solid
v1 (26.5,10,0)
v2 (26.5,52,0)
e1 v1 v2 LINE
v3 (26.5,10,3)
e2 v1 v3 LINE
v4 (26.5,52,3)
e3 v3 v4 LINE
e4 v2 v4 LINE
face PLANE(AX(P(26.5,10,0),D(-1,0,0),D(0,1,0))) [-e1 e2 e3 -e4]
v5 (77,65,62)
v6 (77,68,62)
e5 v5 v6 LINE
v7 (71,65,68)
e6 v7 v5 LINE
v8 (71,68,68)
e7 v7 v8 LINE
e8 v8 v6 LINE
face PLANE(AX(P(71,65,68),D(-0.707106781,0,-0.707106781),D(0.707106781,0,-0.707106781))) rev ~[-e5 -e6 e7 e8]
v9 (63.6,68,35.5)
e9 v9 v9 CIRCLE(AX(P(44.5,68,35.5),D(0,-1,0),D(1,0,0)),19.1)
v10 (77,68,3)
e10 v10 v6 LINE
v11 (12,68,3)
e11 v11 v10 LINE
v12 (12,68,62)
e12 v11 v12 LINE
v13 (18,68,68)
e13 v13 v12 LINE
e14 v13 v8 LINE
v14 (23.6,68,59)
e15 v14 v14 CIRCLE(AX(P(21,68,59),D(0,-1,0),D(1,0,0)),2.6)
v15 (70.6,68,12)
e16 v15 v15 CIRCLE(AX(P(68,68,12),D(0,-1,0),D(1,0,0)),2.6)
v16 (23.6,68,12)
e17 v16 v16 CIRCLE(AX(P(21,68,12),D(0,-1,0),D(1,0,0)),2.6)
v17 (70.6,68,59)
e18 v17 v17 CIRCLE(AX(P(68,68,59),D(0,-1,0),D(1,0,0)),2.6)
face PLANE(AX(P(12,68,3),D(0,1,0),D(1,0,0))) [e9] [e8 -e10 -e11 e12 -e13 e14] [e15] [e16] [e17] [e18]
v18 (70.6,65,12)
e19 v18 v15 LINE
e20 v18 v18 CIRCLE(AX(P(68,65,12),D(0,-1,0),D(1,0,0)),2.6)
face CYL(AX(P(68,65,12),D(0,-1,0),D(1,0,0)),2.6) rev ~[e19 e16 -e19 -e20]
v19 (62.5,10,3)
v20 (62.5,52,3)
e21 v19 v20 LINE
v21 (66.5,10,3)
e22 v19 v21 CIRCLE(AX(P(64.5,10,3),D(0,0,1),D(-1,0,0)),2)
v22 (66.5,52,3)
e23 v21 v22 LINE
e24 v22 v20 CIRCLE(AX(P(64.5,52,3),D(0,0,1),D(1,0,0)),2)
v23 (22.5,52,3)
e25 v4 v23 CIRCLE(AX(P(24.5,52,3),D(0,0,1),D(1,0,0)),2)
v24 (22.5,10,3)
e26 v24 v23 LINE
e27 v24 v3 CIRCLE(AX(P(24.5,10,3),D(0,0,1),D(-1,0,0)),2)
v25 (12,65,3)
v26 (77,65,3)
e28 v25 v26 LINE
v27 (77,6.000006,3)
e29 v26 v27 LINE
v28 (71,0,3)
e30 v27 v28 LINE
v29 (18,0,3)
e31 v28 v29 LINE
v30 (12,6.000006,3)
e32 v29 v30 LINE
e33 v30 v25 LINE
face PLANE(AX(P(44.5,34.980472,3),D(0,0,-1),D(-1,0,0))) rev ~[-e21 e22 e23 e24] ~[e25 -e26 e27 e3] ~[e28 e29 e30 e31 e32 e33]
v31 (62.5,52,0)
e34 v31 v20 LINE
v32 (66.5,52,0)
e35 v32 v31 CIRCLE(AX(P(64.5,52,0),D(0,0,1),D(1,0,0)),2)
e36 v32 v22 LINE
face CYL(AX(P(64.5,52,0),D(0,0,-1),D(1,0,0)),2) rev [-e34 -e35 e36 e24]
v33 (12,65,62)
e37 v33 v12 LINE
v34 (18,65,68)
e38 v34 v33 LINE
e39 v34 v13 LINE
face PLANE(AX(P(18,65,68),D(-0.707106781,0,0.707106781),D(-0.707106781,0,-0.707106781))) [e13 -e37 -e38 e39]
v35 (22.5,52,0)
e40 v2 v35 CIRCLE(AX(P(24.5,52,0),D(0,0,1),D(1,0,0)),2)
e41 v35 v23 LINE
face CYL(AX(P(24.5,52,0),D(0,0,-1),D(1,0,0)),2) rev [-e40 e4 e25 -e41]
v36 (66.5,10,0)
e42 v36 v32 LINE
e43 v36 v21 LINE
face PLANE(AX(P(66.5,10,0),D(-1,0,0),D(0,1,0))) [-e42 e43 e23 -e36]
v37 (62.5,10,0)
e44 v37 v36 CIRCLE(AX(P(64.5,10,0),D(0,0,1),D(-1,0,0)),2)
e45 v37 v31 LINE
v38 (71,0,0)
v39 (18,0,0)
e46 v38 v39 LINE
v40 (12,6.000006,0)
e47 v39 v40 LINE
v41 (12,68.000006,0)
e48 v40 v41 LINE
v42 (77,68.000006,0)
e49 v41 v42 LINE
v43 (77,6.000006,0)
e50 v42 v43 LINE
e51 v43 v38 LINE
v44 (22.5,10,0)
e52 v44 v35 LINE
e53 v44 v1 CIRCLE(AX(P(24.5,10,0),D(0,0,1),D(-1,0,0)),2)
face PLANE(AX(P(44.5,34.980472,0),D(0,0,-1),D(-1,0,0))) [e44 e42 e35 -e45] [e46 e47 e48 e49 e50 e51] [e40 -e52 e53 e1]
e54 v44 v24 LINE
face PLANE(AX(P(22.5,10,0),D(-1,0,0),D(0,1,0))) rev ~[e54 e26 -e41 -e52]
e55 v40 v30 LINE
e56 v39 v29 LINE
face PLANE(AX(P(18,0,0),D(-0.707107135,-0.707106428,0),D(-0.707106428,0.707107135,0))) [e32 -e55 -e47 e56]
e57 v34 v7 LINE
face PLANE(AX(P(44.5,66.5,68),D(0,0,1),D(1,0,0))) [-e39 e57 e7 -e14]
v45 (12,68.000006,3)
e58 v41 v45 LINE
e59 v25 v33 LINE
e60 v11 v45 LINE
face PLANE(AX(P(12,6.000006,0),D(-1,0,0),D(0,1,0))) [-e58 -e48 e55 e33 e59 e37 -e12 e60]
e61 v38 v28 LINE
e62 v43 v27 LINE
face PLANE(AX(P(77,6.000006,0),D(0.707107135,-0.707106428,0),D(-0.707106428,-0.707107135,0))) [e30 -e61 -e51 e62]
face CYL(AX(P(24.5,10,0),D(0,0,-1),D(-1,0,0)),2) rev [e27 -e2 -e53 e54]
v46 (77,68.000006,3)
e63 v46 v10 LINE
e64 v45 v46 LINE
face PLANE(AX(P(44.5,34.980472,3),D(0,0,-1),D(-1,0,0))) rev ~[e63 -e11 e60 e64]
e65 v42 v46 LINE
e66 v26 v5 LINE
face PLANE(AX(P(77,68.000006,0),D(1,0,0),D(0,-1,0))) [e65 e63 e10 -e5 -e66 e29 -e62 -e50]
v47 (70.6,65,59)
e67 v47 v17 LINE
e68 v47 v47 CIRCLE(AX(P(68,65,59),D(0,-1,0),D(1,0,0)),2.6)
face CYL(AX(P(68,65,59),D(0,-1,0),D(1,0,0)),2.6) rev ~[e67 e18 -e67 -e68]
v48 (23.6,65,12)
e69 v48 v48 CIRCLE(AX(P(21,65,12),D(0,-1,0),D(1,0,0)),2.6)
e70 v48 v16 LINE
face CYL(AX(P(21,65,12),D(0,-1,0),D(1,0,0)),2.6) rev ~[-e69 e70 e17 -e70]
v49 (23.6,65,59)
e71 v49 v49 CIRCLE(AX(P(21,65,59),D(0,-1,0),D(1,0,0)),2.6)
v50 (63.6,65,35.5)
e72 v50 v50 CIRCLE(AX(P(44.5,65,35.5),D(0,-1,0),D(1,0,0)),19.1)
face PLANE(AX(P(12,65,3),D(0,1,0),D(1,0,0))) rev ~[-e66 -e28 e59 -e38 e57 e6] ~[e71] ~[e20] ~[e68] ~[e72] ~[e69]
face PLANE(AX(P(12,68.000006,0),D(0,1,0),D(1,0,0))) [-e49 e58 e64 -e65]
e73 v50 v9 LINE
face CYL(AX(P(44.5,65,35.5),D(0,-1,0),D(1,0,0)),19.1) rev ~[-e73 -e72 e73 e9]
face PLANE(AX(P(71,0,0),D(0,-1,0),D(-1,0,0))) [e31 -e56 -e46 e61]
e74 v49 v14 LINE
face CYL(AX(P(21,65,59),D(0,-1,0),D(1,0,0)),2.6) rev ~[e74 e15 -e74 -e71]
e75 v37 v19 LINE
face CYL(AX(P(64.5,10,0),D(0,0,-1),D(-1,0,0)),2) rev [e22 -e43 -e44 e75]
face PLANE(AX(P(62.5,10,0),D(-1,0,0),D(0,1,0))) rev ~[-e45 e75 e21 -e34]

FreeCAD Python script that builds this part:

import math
import FreeCAD as App
import Part
import Sketcher
from FreeCAD import Vector
Q = App.Units.Quantity

doc = App.newDocument("Part")
body = doc.addObject("PartDesign::Body", "Body")

sketch1 = doc.addObject("Sketcher::SketchObject", "Sketch")
body.addObject(sketch1)
sketch1.AttachmentSupport = (doc.XY_Plane, [""])
sketch1.MapMode = "FlatFace"
sketch1.addGeometry(Part.LineSegment(Vector(65, 68, 0), Vector(0, 68, 0)), False)
sketch1.addGeometry(Part.LineSegment(Vector(0, 68, 0), Vector(0, 6, 0)), False)
sketch1.addGeometry(Part.LineSegment(Vector(0, 6, 0), Vector(6, 0, 0)), False)
sketch1.addGeometry(Part.LineSegment(Vector(6, 0, 0), Vector(59, 0, 0)), False)
sketch1.addGeometry(Part.LineSegment(Vector(59, 0, 0), Vector(65, 6, 0)), False)
sketch1.addGeometry(Part.LineSegment(Vector(65, 6, 0), Vector(65, 68, 0)), False)
sketch1.addGeometry(Part.LineSegment(Vector(50.5, 10, 0), Vector(50.5, 52, 0)), False)
sketch1.addGeometry(Part.ArcOfCircle(Part.Circle(Vector(52.5, 52, 0), Vector(0, 0, 1), 2), math.radians(0), math.radians(180)), False)
sketch1.addGeometry(Part.LineSegment(Vector(54.5, 52, 0), Vector(54.5, 10, 0)), False)
sketch1.addGeometry(Part.ArcOfCircle(Part.Circle(Vector(52.5, 10, 0), Vector(0, 0, 1), 2), math.radians(180), math.radians(360)), False)
sketch1.addGeometry(Part.LineSegment(Vector(10.5, 10, 0), Vector(10.5, 52, 0)), False)
sketch1.addGeometry(Part.ArcOfCircle(Part.Circle(Vector(12.5, 52, 0), Vector(0, 0, 1), 2), math.radians(0), math.radians(180)), False)
sketch1.addGeometry(Part.LineSegment(Vector(14.5, 52, 0), Vector(14.5, 10, 0)), False)
sketch1.addGeometry(Part.ArcOfCircle(Part.Circle(Vector(12.5, 10, 0), Vector(0, 0, 1), 2), math.radians(180), math.radians(360)), False)
sketch1.addConstraint(Sketcher.Constraint("Coincident", 0, 2, 1, 1))
sketch1.addConstraint(Sketcher.Constraint("Coincident", 1, 2, 2, 1))
sketch1.addConstraint(Sketcher.Constraint("Coincident", 2, 2, 3, 1))
sketch1.addConstraint(Sketcher.Constraint("Coincident", 3, 2, 4, 1))
sketch1.addConstraint(Sketcher.Constraint("Coincident", 4, 2, 5, 1))
sketch1.addConstraint(Sketcher.Constraint("Coincident", 5, 2, 0, 1))
sketch1.addConstraint(Sketcher.Constraint("Tangent", 6, 2, 7, 2))
sketch1.addConstraint(Sketcher.Constraint("Tangent", 7, 1, 8, 1))
sketch1.addConstraint(Sketcher.Constraint("Tangent", 8, 2, 9, 2))
sketch1.addConstraint(Sketcher.Constraint("Tangent", 9, 1, 6, 1))
sketch1.addConstraint(Sketcher.Constraint("Tangent", 10, 2, 11, 2))
sketch1.addConstraint(Sketcher.Constraint("Tangent", 11, 1, 12, 1))
sketch1.addConstraint(Sketcher.Constraint("Tangent", 12, 2, 13, 2))
sketch1.addConstraint(Sketcher.Constraint("Tangent", 13, 1, 10, 1))
sketch1.addConstraint(Sketcher.Constraint("Horizontal", 0))
sketch1.addConstraint(Sketcher.Constraint("Vertical", 1))
sketch1.addConstraint(Sketcher.Constraint("Horizontal", 3))
sketch1.addConstraint(Sketcher.Constraint("Vertical", 5))
sketch1.addConstraint(Sketcher.Constraint("Vertical", 6))
sketch1.addConstraint(Sketcher.Constraint("Vertical", 8))
sketch1.addConstraint(Sketcher.Constraint("Vertical", 10))
sketch1.addConstraint(Sketcher.Constraint("Vertical", 12))
sketch1.addConstraint(Sketcher.Constraint("Equal", 9, 11))
sketch1.addConstraint(Sketcher.Constraint("PointOnObject", 0, 2, -2))
sketch1.addConstraint(Sketcher.Constraint("PointOnObject", 2, 2, -1))
sketch1.addConstraint(Sketcher.Constraint("Perpendicular", 2, 4))
sketch1.addConstraint(Sketcher.Constraint("Horizontal", 7, 3, 11, 3))
sketch1.addConstraint(Sketcher.Constraint("Horizontal", 9, 3, 13, 3))
sketch1.addConstraint(Sketcher.Constraint("Horizontal", 1, 2, 4, 2))
sketch1.addConstraint(Sketcher.Constraint("Equal", 2, 4))
sketch1.addConstraint(Sketcher.Constraint("Radius", 7, Q("2 mm")))
sketch1.addConstraint(Sketcher.Constraint("DistanceX", 0, 2, 0, 1, Q("65 mm")))
sketch1.addConstraint(Sketcher.Constraint("DistanceX", 3, 1, 3, 2, Q("53 mm")))
sketch1.addConstraint(Sketcher.Constraint("DistanceY", 1, 2, 1, 1, Q("62 mm")))
sketch1.addConstraint(Sketcher.Constraint("DistanceY", 6, 1, 6, 2, Q("42 mm")))
sketch1.addConstraint(Sketcher.Constraint("DistanceY", -1, 1, 7, 3, Q("52 mm")))
sketch1.addConstraint(Sketcher.Constraint("DistanceX", 11, 3, 7, 3, Q("40 mm")))
sketch1.addConstraint(Sketcher.Constraint("DistanceX", -1, 1, 7, 3, Q("52.5 mm")))
pad1 = doc.addObject("PartDesign::Pad", "Pad")
body.addObject(pad1)
pad1.Profile = sketch1
pad1.Length = 3

sketch2 = doc.addObject("Sketcher::SketchObject", "Sketch001")
body.addObject(sketch2)
sketch2.AttachmentSupport = (doc.XY_Plane, [""])
sketch2.MapMode = "FlatFace"
sketch2.AttachmentOffset = App.Placement(Vector(0, 0, 3), App.Rotation())
sketch2.addGeometry(Part.LineSegment(Vector(0, 68, 0), Vector(0, 65, 0)), False)
sketch2.addGeometry(Part.LineSegment(Vector(0, 65, 0), Vector(65, 65, 0)), False)
sketch2.addGeometry(Part.LineSegment(Vector(65, 65, 0), Vector(65, 68, 0)), False)
sketch2.addGeometry(Part.LineSegment(Vector(65, 68, 0), Vector(0, 68, 0)), False)
sketch2.addConstraint(Sketcher.Constraint("Coincident", 0, 2, 1, 1))
sketch2.addConstraint(Sketcher.Constraint("Coincident", 1, 2, 2, 1))
sketch2.addConstraint(Sketcher.Constraint("Coincident", 2, 2, 3, 1))
sketch2.addConstraint(Sketcher.Constraint("Coincident", 3, 2, 0, 1))
sketch2.addConstraint(Sketcher.Constraint("Vertical", 0))
sketch2.addConstraint(Sketcher.Constraint("Horizontal", 1))
sketch2.addConstraint(Sketcher.Constraint("Vertical", 2))
sketch2.addConstraint(Sketcher.Constraint("Horizontal", 3))
sketch2.addConstraint(Sketcher.Constraint("PointOnObject", 0, 2, -2))
sketch2.addConstraint(Sketcher.Constraint("DistanceX", 1, 1, 1, 2, Q("65 mm")))
sketch2.addConstraint(Sketcher.Constraint("DistanceY", 0, 2, 0, 1, Q("3 mm")))
sketch2.addConstraint(Sketcher.Constraint("DistanceY", -1, 1, 0, 2, Q("65 mm")))
pad2 = doc.addObject("PartDesign::Pad", "Pad001")
body.addObject(pad2)
pad2.Profile = sketch2
pad2.Length = 65

sketch3 = doc.addObject("Sketcher::SketchObject", "Sketch002")
body.addObject(sketch3)
sketch3.AttachmentSupport = (doc.XZ_Plane, [""])
sketch3.MapMode = "FlatFace"
sketch3.AttachmentOffset = App.Placement(Vector(0, 0, -65), App.Rotation())
sketch3.addGeometry(Part.Circle(Vector(9, 59, 0), Vector(0, 0, 1), 2.6), False)
sketch3.addGeometry(Part.Circle(Vector(32.5, 35.5, 0), Vector(0, 0, 1), 19.1), False)
sketch3.addGeometry(Part.Circle(Vector(56, 12, 0), Vector(0, 0, 1), 2.6), False)
sketch3.addGeometry(Part.Circle(Vector(56, 59, 0), Vector(0, 0, 1), 2.6), False)
sketch3.addGeometry(Part.Circle(Vector(9, 12, 0), Vector(0, 0, 1), 2.6), False)
sketch3.addGeometry(Part.LineSegment(Vector(6, 68, 0), Vector(0, 68, 0)), False)
sketch3.addGeometry(Part.LineSegment(Vector(0, 68, 0), Vector(0, 62, 0)), False)
sketch3.addGeometry(Part.LineSegment(Vector(0, 62, 0), Vector(6, 68, 0)), False)
sketch3.addGeometry(Part.LineSegment(Vector(65, 68, 0), Vector(59, 68, 0)), False)
sketch3.addGeometry(Part.LineSegment(Vector(59, 68, 0), Vector(65, 62, 0)), False)
sketch3.addGeometry(Part.LineSegment(Vector(65, 62, 0), Vector(65, 68, 0)), False)
sketch3.addConstraint(Sketcher.Constraint("Coincident", 5, 2, 6, 1))
sketch3.addConstraint(Sketcher.Constraint("Coincident", 6, 2, 7, 1))
sketch3.addConstraint(Sketcher.Constraint("Coincident", 7, 2, 5, 1))
sketch3.addConstraint(Sketcher.Constraint("Coincident", 8, 2, 9, 1))
sketch3.addConstraint(Sketcher.Constraint("Coincident", 9, 2, 10, 1))
sketch3.addConstraint(Sketcher.Constraint("Coincident", 10, 2, 8, 1))
sketch3.addConstraint(Sketcher.Constraint("Horizontal", 5))
sketch3.addConstraint(Sketcher.Constraint("Vertical", 6))
sketch3.addConstraint(Sketcher.Constraint("Horizontal", 8))
sketch3.addConstraint(Sketcher.Constraint("Vertical", 10))
sketch3.addConstraint(Sketcher.Constraint("Equal", 0, 2))
sketch3.addConstraint(Sketcher.Constraint("Equal", 2, 3))
sketch3.addConstraint(Sketcher.Constraint("Equal", 3, 4))
sketch3.addConstraint(Sketcher.Constraint("PointOnObject", 5, 2, -2))
sketch3.addConstraint(Sketcher.Constraint("Perpendicular", 7, 9))
sketch3.addConstraint(Sketcher.Constraint("Horizontal", 0, 3, 3, 3))
sketch3.addConstraint(Sketcher.Constraint("Horizontal", 2, 3, 4, 3))
sketch3.addConstraint(Sketcher.Constraint("Horizontal", 7, 2, 8, 2))
sketch3.addConstraint(Sketcher.Constraint("Horizontal", 6, 2, 9, 2))
sketch3.addConstraint(Sketcher.Constraint("Vertical", 2, 3, 3, 3))
sketch3.addConstraint(Sketcher.Constraint("Vertical", 0, 3, 4, 3))
sketch3.addConstraint(Sketcher.Constraint("Equal", 5, 8))
sketch3.addConstraint(Sketcher.Constraint("Diameter", 0, Q("5.2 mm")))
sketch3.addConstraint(Sketcher.Constraint("Diameter", 1, Q("38.2 mm")))
sketch3.addConstraint(Sketcher.Constraint("DistanceX", 5, 2, 5, 1, Q("6 mm")))
sketch3.addConstraint(Sketcher.Constraint("DistanceX", -1, 1, 0, 3, Q("9 mm")))
sketch3.addConstraint(Sketcher.Constraint("DistanceY", -1, 1, 0, 3, Q("59 mm")))
sketch3.addConstraint(Sketcher.Constraint("DistanceX", -1, 1, 2, 3, Q("56 mm")))
sketch3.addConstraint(Sketcher.Constraint("DistanceY", -1, 1, 2, 3, Q("12 mm")))
sketch3.addConstraint(Sketcher.Constraint("DistanceY", -1, 1, 5, 2, Q("68 mm")))
sketch3.addConstraint(Sketcher.Constraint("DistanceX", -1, 1, 8, 2, Q("59 mm")))
sketch3.addConstraint(Sketcher.Constraint("DistanceX", -1, 1, 1, 3, Q("32.5 mm")))
sketch3.addConstraint(Sketcher.Constraint("DistanceY", -1, 1, 1, 3, Q("35.5 mm")))
pocket1 = doc.addObject("PartDesign::Pocket", "Pocket")
body.addObject(pocket1)
pocket1.Profile = sketch3
pocket1.Length = 3
body2 = doc.addObject("PartDesign::Body", "Body001")
doc.recompute()

body.Placement = App.Placement(Vector(12, 0, 0), App.Rotation(Vector(0, 0, 1), 0))
boolean = doc.addObject("PartDesign::Boolean", "Boolean")
body2.addObject(boolean)
boolean.Type = "Fuse"
boolean.addObjects([body])

doc.recompute()
